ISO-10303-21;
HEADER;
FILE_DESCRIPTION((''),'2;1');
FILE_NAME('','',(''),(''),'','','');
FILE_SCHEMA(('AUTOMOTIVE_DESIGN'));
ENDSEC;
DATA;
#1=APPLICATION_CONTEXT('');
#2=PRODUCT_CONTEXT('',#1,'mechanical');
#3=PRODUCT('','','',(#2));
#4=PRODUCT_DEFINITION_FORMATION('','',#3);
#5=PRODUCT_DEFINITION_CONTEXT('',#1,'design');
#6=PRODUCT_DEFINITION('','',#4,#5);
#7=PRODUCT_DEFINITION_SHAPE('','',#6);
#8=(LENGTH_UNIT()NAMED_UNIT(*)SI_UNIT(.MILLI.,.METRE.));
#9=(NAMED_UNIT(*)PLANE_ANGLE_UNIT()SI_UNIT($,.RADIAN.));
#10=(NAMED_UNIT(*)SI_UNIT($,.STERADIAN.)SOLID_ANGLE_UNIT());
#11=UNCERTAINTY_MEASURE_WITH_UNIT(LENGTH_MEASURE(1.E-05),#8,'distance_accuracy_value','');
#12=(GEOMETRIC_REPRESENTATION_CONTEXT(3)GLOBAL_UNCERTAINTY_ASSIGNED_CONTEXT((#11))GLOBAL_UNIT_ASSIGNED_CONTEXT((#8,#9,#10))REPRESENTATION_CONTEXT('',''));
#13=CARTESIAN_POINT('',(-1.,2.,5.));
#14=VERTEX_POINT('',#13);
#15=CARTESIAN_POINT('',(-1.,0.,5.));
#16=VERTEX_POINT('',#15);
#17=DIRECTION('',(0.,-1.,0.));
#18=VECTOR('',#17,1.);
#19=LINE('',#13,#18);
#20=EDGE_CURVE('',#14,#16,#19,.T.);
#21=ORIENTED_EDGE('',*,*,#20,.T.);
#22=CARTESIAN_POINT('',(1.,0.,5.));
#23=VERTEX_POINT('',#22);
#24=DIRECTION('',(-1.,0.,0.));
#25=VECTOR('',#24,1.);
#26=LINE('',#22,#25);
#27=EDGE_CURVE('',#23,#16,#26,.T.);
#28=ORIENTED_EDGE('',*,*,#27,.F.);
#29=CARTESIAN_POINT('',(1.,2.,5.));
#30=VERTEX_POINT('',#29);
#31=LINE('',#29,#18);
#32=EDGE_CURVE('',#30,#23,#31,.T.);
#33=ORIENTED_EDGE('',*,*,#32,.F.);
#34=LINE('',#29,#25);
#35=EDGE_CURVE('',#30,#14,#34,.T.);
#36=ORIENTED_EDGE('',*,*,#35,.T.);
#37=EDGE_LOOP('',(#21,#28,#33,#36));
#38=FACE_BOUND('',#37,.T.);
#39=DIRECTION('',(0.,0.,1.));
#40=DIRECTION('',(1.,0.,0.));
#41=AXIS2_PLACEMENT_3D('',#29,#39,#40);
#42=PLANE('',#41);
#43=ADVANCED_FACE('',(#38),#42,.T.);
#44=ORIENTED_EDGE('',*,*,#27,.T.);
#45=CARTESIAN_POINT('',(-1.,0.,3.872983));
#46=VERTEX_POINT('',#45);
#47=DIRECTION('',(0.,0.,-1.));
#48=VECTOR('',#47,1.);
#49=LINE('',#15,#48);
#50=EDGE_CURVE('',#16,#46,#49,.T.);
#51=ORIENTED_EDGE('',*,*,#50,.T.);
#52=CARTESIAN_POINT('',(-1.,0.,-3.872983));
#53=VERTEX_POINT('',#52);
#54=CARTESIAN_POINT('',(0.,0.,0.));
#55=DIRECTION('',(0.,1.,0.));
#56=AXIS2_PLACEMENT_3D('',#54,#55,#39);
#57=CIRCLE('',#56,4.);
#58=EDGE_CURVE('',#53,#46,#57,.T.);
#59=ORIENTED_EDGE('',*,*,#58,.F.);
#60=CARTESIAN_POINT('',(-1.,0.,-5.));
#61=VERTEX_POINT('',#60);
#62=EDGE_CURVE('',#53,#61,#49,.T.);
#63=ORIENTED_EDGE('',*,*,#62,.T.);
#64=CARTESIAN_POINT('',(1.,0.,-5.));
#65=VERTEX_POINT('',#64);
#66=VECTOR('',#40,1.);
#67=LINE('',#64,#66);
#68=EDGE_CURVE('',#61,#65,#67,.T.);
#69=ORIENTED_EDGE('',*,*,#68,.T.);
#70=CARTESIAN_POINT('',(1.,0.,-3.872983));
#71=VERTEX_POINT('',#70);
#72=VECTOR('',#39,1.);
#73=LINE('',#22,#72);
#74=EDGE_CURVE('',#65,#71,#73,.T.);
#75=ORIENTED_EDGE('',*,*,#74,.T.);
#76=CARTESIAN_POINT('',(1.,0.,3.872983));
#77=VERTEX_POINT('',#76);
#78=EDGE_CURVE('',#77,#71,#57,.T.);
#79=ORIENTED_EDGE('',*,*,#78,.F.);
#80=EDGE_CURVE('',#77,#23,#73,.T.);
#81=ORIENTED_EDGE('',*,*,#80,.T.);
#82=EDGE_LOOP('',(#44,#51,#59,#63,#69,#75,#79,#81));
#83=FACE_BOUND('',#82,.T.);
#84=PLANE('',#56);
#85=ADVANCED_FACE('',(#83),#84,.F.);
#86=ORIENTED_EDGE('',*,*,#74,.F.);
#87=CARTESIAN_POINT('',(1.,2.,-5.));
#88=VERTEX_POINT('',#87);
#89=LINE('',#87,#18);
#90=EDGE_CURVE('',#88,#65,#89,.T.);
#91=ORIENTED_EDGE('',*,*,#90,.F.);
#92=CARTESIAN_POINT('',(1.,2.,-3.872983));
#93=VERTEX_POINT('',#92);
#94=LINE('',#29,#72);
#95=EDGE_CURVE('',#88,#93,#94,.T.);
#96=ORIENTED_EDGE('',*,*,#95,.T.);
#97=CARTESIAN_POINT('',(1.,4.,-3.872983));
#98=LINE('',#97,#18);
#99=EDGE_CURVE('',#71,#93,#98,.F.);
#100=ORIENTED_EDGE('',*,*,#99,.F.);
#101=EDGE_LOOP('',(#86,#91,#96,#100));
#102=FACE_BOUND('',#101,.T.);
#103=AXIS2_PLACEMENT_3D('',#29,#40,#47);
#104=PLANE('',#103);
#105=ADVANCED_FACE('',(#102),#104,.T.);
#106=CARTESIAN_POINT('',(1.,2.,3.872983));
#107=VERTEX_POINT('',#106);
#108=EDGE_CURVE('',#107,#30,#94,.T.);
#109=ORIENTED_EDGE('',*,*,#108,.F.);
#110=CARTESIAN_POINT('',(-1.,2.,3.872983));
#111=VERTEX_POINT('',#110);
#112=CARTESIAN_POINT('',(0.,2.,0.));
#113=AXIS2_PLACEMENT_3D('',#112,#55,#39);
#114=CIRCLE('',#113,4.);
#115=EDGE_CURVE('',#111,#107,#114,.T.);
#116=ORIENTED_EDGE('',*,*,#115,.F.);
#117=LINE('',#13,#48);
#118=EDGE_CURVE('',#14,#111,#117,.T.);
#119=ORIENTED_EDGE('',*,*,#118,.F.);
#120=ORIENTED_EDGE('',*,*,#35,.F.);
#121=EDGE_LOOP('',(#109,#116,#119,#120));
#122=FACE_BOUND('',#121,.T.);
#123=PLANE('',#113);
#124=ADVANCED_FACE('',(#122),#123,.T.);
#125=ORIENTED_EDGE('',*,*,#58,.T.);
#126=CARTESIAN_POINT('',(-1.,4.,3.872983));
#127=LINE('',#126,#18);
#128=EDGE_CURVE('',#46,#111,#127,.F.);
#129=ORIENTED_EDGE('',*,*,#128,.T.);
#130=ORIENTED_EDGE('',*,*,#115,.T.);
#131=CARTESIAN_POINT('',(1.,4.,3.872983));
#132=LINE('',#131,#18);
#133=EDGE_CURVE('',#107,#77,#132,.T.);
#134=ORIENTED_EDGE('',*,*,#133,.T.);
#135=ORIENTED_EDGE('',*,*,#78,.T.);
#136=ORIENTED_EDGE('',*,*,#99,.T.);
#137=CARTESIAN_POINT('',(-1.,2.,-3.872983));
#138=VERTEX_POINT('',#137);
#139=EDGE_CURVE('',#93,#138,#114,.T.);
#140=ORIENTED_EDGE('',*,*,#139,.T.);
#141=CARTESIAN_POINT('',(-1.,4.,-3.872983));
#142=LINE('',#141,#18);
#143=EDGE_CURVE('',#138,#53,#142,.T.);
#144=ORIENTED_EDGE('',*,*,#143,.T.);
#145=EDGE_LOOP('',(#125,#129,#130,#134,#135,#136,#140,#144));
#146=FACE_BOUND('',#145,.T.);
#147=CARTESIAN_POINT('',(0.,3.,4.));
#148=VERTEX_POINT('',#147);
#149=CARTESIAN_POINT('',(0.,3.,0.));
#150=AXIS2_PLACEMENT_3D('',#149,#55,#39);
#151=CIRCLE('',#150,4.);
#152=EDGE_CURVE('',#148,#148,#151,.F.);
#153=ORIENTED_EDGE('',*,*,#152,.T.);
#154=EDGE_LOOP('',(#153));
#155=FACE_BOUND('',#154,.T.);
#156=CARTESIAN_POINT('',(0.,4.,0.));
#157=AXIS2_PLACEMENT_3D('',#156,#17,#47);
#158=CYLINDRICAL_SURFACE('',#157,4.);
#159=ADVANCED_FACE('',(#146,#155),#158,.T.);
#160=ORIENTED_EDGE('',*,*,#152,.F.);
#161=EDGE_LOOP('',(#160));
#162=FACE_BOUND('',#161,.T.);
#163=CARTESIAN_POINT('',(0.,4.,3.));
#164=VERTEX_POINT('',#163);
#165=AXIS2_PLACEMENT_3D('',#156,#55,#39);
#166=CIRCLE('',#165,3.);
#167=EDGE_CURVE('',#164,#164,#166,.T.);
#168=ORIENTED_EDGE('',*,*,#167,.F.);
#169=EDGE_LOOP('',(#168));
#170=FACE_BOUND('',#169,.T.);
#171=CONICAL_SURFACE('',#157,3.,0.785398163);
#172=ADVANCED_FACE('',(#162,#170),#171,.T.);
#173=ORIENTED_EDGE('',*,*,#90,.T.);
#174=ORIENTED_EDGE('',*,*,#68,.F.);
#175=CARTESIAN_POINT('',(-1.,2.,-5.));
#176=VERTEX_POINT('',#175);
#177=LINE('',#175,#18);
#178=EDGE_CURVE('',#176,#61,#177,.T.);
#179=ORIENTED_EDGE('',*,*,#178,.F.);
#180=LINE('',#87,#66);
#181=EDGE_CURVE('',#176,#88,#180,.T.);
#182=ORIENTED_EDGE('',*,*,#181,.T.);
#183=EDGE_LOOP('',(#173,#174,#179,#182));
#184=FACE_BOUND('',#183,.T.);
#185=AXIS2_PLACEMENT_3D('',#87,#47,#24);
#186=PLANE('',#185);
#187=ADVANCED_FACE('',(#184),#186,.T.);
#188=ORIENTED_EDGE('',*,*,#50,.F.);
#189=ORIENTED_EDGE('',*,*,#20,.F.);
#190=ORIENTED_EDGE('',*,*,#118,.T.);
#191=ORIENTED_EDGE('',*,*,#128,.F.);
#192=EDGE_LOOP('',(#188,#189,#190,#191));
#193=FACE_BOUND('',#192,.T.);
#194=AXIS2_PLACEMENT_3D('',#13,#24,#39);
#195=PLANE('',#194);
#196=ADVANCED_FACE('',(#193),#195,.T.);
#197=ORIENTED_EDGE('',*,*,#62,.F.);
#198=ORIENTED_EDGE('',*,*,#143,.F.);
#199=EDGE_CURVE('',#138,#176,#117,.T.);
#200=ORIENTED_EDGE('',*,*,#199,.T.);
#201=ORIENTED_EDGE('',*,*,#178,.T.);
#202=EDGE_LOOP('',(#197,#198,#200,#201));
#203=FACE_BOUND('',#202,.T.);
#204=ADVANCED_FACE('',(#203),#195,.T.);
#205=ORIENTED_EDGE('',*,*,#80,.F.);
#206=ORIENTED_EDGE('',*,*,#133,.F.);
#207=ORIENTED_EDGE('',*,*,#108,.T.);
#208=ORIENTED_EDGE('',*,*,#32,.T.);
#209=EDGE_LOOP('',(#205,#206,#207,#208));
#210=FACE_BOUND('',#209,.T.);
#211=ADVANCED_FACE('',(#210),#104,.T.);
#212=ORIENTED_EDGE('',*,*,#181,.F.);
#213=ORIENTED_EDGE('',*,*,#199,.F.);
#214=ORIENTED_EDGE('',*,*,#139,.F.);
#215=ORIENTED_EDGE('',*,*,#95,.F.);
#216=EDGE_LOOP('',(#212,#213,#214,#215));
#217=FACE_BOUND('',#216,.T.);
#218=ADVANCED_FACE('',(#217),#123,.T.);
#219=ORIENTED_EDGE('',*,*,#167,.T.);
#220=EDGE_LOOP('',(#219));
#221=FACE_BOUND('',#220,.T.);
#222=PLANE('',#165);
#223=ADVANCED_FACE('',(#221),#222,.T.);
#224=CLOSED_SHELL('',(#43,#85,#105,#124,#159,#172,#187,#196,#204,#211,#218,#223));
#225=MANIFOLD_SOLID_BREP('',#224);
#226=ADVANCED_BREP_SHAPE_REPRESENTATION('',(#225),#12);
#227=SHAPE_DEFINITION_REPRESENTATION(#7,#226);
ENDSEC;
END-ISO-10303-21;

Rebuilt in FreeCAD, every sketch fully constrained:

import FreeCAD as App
import Part
import Sketcher
Q = App.Units.Quantity


def edges_at(feature, points):
    """Names of the edges that pass closest to the given points."""
    edges = feature.Shape.Edges
    near = lambda p: min(range(len(edges)), key=lambda i: edges[i].distToShape(Part.Vertex(*p))[0])
    return sorted({f"Edge{near(p) + 1}" for p in points})

doc = App.newDocument("Part")
params = doc.addObject("Spreadsheet::Sheet", "Params")
for row, (alias, value) in enumerate([
    ("sketch1_diameter", "8 mm"),
    ("pad1_length", "4 mm"),
    ("sketch2_width", "2 mm"),
    ("sketch2_height", "10 mm"),
    ("pad2_length", "2 mm"),
    ("chamfer_size", "1 mm"),
], start=1):
    params.set(f"A{row}", alias)
    params.set(f"B{row}", "=" + value)
    params.setAlias(f"B{row}", alias)

body = doc.addObject("PartDesign::Body", "Body")

# Sketch on XZ plane
sketch1 = body.newObject("Sketcher::SketchObject", "Sketch")
sketch1.AttachmentSupport = (doc.getObject("XZ_Plane"), [""])
sketch1.MapMode = "FlatFace"
sketch1.addGeometry(Part.Circle(App.Vector(0, 0, 0), App.Vector(0, 0, 1), 4), False)
sketch1.addConstraint(Sketcher.Constraint("Coincident", 0, 3, -1, 1))
sketch1.addConstraint(Sketcher.Constraint("Diameter", 0, Q("8 mm")))
sketch1.setExpression("Constraints[1]", "Params.sketch1_diameter")
pad1 = body.newObject("PartDesign::Pad", "Pad")
pad1.Profile = sketch1
pad1.setExpression("Length", "Params.pad1_length")
pad1.Reversed = True

# Sketch on XZ plane
sketch2 = body.newObject("Sketcher::SketchObject", "Sketch001")
sketch2.AttachmentSupport = (doc.getObject("XZ_Plane"), [""])
sketch2.MapMode = "FlatFace"
sketch2.addGeometry(Part.LineSegment(App.Vector(-1, 5, 0), App.Vector(-1, -5, 0)), False)
sketch2.addGeometry(Part.LineSegment(App.Vector(-1, -5, 0), App.Vector(1, -5, 0)), False)
sketch2.addGeometry(Part.LineSegment(App.Vector(1, -5, 0), App.Vector(1, 5, 0)), False)
sketch2.addGeometry(Part.LineSegment(App.Vector(1, 5, 0), App.Vector(-1, 5, 0)), False)
sketch2.addConstraint(Sketcher.Constraint("Coincident", 0, 2, 1, 1))
sketch2.addConstraint(Sketcher.Constraint("Coincident", 1, 2, 2, 1))
sketch2.addConstraint(Sketcher.Constraint("Coincident", 2, 2, 3, 1))
sketch2.addConstraint(Sketcher.Constraint("Coincident", 3, 2, 0, 1))
sketch2.addConstraint(Sketcher.Constraint("Vertical", 0))
sketch2.addConstraint(Sketcher.Constraint("Horizontal", 1))
sketch2.addConstraint(Sketcher.Constraint("Vertical", 2))
sketch2.addConstraint(Sketcher.Constraint("Horizontal", 3))
sketch2.addConstraint(Sketcher.Constraint("Symmetric", 0, 2, 2, 2, -1, 1))
sketch2.addConstraint(Sketcher.Constraint("DistanceX", 1, 1, 1, 2, Q("2 mm")))
sketch2.addConstraint(Sketcher.Constraint("DistanceY", 0, 2, 0, 1, Q("10 mm")))
sketch2.setExpression("Constraints[9]", "Params.sketch2_width")
sketch2.setExpression("Constraints[10]", "Params.sketch2_height")
pad2 = body.newObject("PartDesign::Pad", "Pad001")
pad2.Profile = sketch2
pad2.setExpression("Length", "Params.pad2_length")
pad2.Reversed = True
doc.recompute()

chamfer = body.newObject("PartDesign::Chamfer", "Chamfer")
chamfer.Base = (pad2, edges_at(pad2, [(0, 4, -4)]))
chamfer.setExpression("Size", "Params.chamfer_size")

doc.recompute()
